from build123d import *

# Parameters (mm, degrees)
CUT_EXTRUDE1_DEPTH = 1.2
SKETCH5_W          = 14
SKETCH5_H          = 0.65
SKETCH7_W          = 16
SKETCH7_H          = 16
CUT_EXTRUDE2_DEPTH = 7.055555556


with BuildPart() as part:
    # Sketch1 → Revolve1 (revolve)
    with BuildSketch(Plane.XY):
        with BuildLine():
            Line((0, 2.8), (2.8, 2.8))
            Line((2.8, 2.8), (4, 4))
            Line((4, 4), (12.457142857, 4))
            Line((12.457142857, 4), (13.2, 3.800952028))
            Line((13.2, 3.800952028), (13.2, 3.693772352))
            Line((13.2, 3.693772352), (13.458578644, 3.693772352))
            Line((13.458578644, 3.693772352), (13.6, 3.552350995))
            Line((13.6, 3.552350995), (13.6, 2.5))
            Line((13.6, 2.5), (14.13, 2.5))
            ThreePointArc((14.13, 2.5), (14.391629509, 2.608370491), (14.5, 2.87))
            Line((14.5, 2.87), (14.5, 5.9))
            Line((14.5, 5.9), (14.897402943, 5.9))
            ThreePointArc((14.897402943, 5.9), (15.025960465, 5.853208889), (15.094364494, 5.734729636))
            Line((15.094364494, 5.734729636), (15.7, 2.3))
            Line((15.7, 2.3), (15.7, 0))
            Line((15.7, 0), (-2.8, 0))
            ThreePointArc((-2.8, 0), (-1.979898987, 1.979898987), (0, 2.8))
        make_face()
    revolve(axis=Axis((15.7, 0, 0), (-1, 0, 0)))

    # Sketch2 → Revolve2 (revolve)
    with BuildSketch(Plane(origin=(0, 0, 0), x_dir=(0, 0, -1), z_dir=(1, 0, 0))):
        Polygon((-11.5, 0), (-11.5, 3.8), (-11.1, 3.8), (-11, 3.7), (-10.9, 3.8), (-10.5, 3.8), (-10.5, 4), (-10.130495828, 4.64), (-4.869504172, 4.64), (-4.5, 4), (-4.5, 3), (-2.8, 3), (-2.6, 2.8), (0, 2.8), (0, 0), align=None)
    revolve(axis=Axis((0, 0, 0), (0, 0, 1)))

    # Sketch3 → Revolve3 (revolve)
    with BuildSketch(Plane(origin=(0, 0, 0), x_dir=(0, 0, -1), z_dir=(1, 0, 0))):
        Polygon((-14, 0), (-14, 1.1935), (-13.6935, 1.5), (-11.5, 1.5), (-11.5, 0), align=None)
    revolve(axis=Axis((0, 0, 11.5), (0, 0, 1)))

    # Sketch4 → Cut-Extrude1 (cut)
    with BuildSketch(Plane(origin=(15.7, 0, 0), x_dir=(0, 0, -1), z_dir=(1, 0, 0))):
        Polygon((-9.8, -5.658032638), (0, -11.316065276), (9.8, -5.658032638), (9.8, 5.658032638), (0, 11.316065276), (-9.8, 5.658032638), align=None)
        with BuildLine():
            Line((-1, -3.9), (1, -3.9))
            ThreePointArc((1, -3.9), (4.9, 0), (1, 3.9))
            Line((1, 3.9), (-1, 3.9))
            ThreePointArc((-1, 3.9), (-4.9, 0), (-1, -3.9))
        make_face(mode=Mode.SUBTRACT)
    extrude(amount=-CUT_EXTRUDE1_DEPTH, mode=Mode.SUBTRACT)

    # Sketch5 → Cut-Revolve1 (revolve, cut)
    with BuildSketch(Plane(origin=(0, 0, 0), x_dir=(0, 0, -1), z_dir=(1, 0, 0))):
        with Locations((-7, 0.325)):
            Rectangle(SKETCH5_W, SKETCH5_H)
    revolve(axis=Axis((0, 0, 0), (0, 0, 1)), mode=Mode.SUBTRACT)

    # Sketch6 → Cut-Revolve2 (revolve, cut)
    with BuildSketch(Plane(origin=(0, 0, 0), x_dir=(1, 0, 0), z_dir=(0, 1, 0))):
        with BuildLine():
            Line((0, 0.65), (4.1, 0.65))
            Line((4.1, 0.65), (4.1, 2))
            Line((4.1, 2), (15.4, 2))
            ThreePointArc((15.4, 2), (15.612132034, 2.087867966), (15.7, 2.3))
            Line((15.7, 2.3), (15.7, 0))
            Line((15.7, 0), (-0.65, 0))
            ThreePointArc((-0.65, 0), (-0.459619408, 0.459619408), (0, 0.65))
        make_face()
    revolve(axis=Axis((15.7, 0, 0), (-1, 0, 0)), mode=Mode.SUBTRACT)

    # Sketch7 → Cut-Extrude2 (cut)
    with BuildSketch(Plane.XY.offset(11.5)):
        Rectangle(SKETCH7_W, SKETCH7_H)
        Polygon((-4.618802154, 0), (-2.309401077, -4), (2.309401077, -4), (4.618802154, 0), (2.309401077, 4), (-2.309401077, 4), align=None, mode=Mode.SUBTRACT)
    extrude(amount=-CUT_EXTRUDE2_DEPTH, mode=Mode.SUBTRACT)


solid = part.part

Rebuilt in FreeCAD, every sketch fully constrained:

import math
import FreeCAD as App
import Part
import Sketcher
Q = App.Units.Quantity


def add_polygon(sketch, points):
    """Adds a closed chain of lines whose ends are joined by coincident constraints."""
    first, n = sketch.GeometryCount, len(points)
    for a, b in zip(points, points[1:] + points[:1]):
        sketch.addGeometry(Part.LineSegment(App.Vector(*a, 0), App.Vector(*b, 0)), False)
    for i in range(n):
        sketch.addConstraint(Sketcher.Constraint("Coincident", first + i, 2, first + (i + 1) % n, 1))

doc = App.newDocument("Part")
params = doc.addObject("Spreadsheet::Sheet", "Params")
for row, (alias, value) in enumerate([
    ("sketch1_radius", "2.8 mm"),
    ("sketch1_radius2", "0.2 mm"),
    ("sketch1_radius3", "0.37 mm"),
    ("sketch1_width", "2.8 mm"),
    ("sketch1_width2", "18.5 mm"),
    ("revolution_angle", "360 deg"),
    ("sketch2_width", "1 mm"),
    ("sketch2_width2", "3.8 mm"),
    ("sketch2_width3", "2.8 mm"),
    ("sketch2_width4", "0.2 mm"),
    ("sketch2_height", "11.5 mm"),
    ("revolution2_angle", "360 deg"),
    ("sketch3_width", "1.5 mm"),
    ("sketch3_height", "2.5 mm"),
    ("revolution3_angle", "360 deg"),
    ("sketch4_radius", "3.9 mm"),
    ("sketch4_height", "2 mm"),
    ("pocket1_length", "1.2 mm"),
    ("sketch5_height", "14 mm"),
    ("sketch5_width", "0.65 mm"),
    ("groove_angle", "360 deg"),
    ("sketch6_radius", "0.3 mm"),
    ("sketch6_radius2", "0.65 mm"),
    ("sketch6_width", "4.1 mm"),
    ("sketch6_width2", "11.3 mm"),
    ("sketch6_height", "2.3 mm"),
    ("groove2_angle", "360 deg"),
    ("sketch7_width", "16 mm"),
    ("pocket2_length", "7.055556 mm"),
], start=1):
    params.set(f"A{row}", alias)
    params.set(f"B{row}", "=" + value)
    params.setAlias(f"B{row}", alias)

body = doc.addObject("PartDesign::Body", "Body")

sketch1 = body.newObject("Sketcher::SketchObject", "Sketch")
sketch1.AttachmentSupport = (doc.getObject("XY_Plane"), [""])
sketch1.MapMode = "FlatFace"
sketch1.addGeometry(Part.LineSegment(App.Vector(2.8, 2.8, 0), App.Vector(0, 2.8, 0)), False)
sketch1.addGeometry(Part.ArcOfCircle(Part.Circle(App.Vector(0, 0, 0), App.Vector(0, 0, 1), 2.8), math.radians(90), math.radians(180)), False)
sketch1.addGeometry(Part.LineSegment(App.Vector(-2.8, 0, 0), App.Vector(15.7, 0, 0)), False)
sketch1.addGeometry(Part.LineSegment(App.Vector(15.7, 0, 0), App.Vector(15.7, 2.3, 0)), False)
sketch1.addGeometry(Part.LineSegment(App.Vector(15.7, 2.3, 0), App.Vector(15.09, 5.73, 0)), False)
sketch1.addGeometry(Part.ArcOfCircle(Part.Circle(App.Vector(14.9, 5.7, 0), App.Vector(0, 0, 1), 0.2), math.radians(10), math.radians(90)), False)
sketch1.addGeometry(Part.LineSegment(App.Vector(14.9, 5.9, 0), App.Vector(14.5, 5.9, 0)), False)
sketch1.addGeometry(Part.LineSegment(App.Vector(14.5, 5.9, 0), App.Vector(14.5, 2.87, 0)), False)
sketch1.addGeometry(Part.ArcOfCircle(Part.Circle(App.Vector(14.13, 2.87, 0), App.Vector(0, 0, 1), 0.37), math.radians(-90), math.radians(0)), False)
sketch1.addGeometry(Part.LineSegment(App.Vector(14.13, 2.5, 0), App.Vector(13.6, 2.5, 0)), False)
sketch1.addGeometry(Part.LineSegment(App.Vector(13.6, 2.5, 0), App.Vector(13.6, 3.55, 0)), False)
sketch1.addGeometry(Part.LineSegment(App.Vector(13.6, 3.55, 0), App.Vector(13.46, 3.69, 0)), False)
sketch1.addGeometry(Part.LineSegment(App.Vector(13.46, 3.69, 0), App.Vector(13.2, 3.69, 0)), False)
sketch1.addGeometry(Part.LineSegment(App.Vector(13.2, 3.69, 0), App.Vector(13.2, 3.8, 0)), False)
sketch1.addGeometry(Part.LineSegment(App.Vector(13.2, 3.8, 0), App.Vector(12.46, 4, 0)), False)
sketch1.addGeometry(Part.LineSegment(App.Vector(12.46, 4, 0), App.Vector(4, 4, 0)), False)
sketch1.addGeometry(Part.LineSegment(App.Vector(4, 4, 0), App.Vector(2.8, 2.8, 0)), False)
sketch1.addConstraint(Sketcher.Constraint("Tangent", 0, 2, 1, 1))
sketch1.addConstraint(Sketcher.Constraint("Coincident", 1, 2, 2, 1))
sketch1.addConstraint(Sketcher.Constraint("Coincident", 2, 2, 3, 1))
sketch1.addConstraint(Sketcher.Constraint("Coincident", 3, 2, 4, 1))
sketch1.addConstraint(Sketcher.Constraint("Tangent", 4, 2, 5, 1))
sketch1.addConstraint(Sketcher.Constraint("Tangent", 5, 2, 6, 1))
sketch1.addConstraint(Sketcher.Constraint("Coincident", 6, 2, 7, 1))
sketch1.addConstraint(Sketcher.Constraint("Tangent", 7, 2, 8, 2))
sketch1.addConstraint(Sketcher.Constraint("Tangent", 8, 1, 9, 1))
sketch1.addConstraint(Sketcher.Constraint("Coincident", 9, 2, 10, 1))
sketch1.addConstraint(Sketcher.Constraint("Coincident", 10, 2, 11, 1))
sketch1.addConstraint(Sketcher.Constraint("Coincident", 11, 2, 12, 1))
sketch1.addConstraint(Sketcher.Constraint("Coincident", 12, 2, 13, 1))
sketch1.addConstraint(Sketcher.Constraint("Coincident", 13, 2, 14, 1))
sketch1.addConstraint(Sketcher.Constraint("Coincident", 14, 2, 15, 1))
sketch1.addConstraint(Sketcher.Constraint("Coincident", 15, 2, 16, 1))
sketch1.addConstraint(Sketcher.Constraint("Coincident", 16, 2, 0, 1))
sketch1.addConstraint(Sketcher.Constraint("Horizontal", 0))
sketch1.addConstraint(Sketcher.Constraint("Horizontal", 2))
sketch1.addConstraint(Sketcher.Constraint("Vertical", 3))
sketch1.addConstraint(Sketcher.Constraint("Horizontal", 6))
sketch1.addConstraint(Sketcher.Constraint("Vertical", 7))
sketch1.addConstraint(Sketcher.Constraint("Horizontal", 9))
sketch1.addConstraint(Sketcher.Constraint("Vertical", 10))
sketch1.addConstraint(Sketcher.Constraint("Horizontal", 12))
sketch1.addConstraint(Sketcher.Constraint("Vertical", 13))
sketch1.addConstraint(Sketcher.Constraint("Horizontal", 15))
sketch1.addConstraint(Sketcher.Constraint("Coincident", 1, 3, -1, 1))
sketch1.addConstraint(Sketcher.Constraint("PointOnObject", 1, 2, -1))
sketch1.addConstraint(Sketcher.Constraint("Perpendicular", 11, 16))
sketch1.addConstraint(Sketcher.Constraint("Radius", 1, Q("2.8 mm")))
sketch1.addConstraint(Sketcher.Constraint("Radius", 5, Q("0.2 mm")))
sketch1.addConstraint(Sketcher.Constraint("Angle", 4, Q("100 deg")))
sketch1.addConstraint(Sketcher.Constraint("Angle", 11, Q("135 deg")))
sketch1.addConstraint(Sketcher.Constraint("Angle", 14, Q("165 deg")))
sketch1.addConstraint(Sketcher.Constraint("Radius", 8, Q("0.37 mm")))
sketch1.addConstraint(Sketcher.Constraint("DistanceX", 0, 2, 0, 1, Q("2.8 mm")))
sketch1.addConstraint(Sketcher.Constraint("DistanceX", 2, 1, 2, 2, Q("18.5 mm")))
sketch1.addConstraint(Sketcher.Constraint("DistanceY", 3, 1, 3, 2, Q("2.3 mm")))
sketch1.addConstraint(Sketcher.Constraint("DistanceY", -1, 1, 14, 2, Q("4 mm")))
sketch1.addConstraint(Sketcher.Constraint("Distance", 11, Q("0.2 mm")))
sketch1.addConstraint(Sketcher.Constraint("DistanceX", 9, 2, 9, 1, Q("0.53 mm")))
sketch1.addConstraint(Sketcher.Constraint("DistanceY", 7, 2, 7, 1, Q("3.03 mm")))
sketch1.addConstraint(Sketcher.Constraint("DistanceY", -1, 1, 5, 3, Q("5.7 mm")))
sketch1.addConstraint(Sketcher.Constraint("DistanceX", -1, 1, 6, 2, Q("14.5 mm")))
sketch1.addConstraint(Sketcher.Constraint("DistanceX", -1, 1, 12, 2, Q("13.2 mm")))
sketch1.addConstraint(Sketcher.Constraint("DistanceY", 10, 1, 10, 2, Q("1.052351 mm")))
sketch1.addConstraint(Sketcher.Constraint("DistanceY", 13, 1, 13, 2, Q("0.10718 mm")))
sketch1.setExpression("Constraints[30]", "Params.sketch1_radius")
sketch1.setExpression("Constraints[31]", "Params.sketch1_radius2")
sketch1.setExpression("Constraints[35]", "Params.sketch1_radius3")
sketch1.setExpression("Constraints[36]", "Params.sketch1_width")
sketch1.setExpression("Constraints[37]", "Params.sketch1_width2")
revolution = body.newObject("PartDesign::Revolution", "Revolution")
revolution.Profile = sketch1
revolution.ReferenceAxis = (sketch1, ["H_Axis"])
revolution.setExpression("Angle", "Params.revolution_angle")

sketch2 = body.newObject("Sketcher::SketchObject", "Sketch001")
sketch2.AttachmentSupport = (doc.getObject("YZ_Plane"), [""])
sketch2.MapMode = "FlatFace"
add_polygon(sketch2, [(3.8, 11.5), (0, 11.5), (0, 0), (2.8, 0), (2.8, 2.6), (3, 2.8), (3, 4.5), (4, 4.5), (4.64, 4.87), (4.64, 10.13), (4, 10.5), (3.8, 10.5), (3.8, 10.9), (3.7, 11), (3.8, 11.1)])
sketch2.addConstraint(Sketcher.Constraint("Horizontal", 0))
sketch2.addConstraint(Sketcher.Constraint("Vertical", 1))
sketch2.addConstraint(Sketcher.Constraint("Horizontal", 2))
sketch2.addConstraint(Sketcher.Constraint("Vertical", 3))
sketch2.addConstraint(Sketcher.Constraint("Vertical", 5))
sketch2.addConstraint(Sketcher.Constraint("Horizontal", 6))
sketch2.addConstraint(Sketcher.Constraint("Vertical", 8))
sketch2.addConstraint(Sketcher.Constraint("Horizontal", 10))
sketch2.addConstraint(Sketcher.Constraint("Vertical", 11))
sketch2.addConstraint(Sketcher.Constraint("Vertical", 14))
sketch2.addConstraint(Sketcher.Constraint("Coincident", 1, 2, -1, 1))
sketch2.addConstraint(Sketcher.Constraint("Perpendicular", 4, 12))
sketch2.addConstraint(Sketcher.Constraint("Perpendicular", 12, 13))
sketch2.addConstraint(Sketcher.Constraint("Vertical", 6, 2, 9, 2))
sketch2.addConstraint(Sketcher.Constraint("Vertical", 11, 2, 13, 2))
sketch2.addConstraint(Sketcher.Constraint("Equal", 11, 14))
sketch2.addConstraint(Sketcher.Constraint("Equal", 7, 9))
sketch2.addConstraint(Sketcher.Constraint("Equal", 12, 13))
sketch2.addConstraint(Sketcher.Constraint("DistanceX", 6, 1, 6, 2, Q("1 mm")))
sketch2.addConstraint(Sketcher.Constraint("Angle", 7, Q("30 deg")))
sketch2.addConstraint(Sketcher.Constraint("DistanceX", 0, 2, 0, 1, Q("3.8 mm")))
sketch2.addConstraint(Sketcher.Constraint("DistanceX", 2, 1, 2, 2, Q("2.8 mm")))
sketch2.addConstraint(Sketcher.Constraint("DistanceX", 10, 2, 10, 1, Q("0.2 mm")))
sketch2.addConstraint(Sketcher.Constraint("DistanceY", 1, 2, 1, 1, Q("11.5 mm")))
sketch2.addConstraint(Sketcher.Constraint("DistanceY", 3, 1, 3, 2, Q("2.6 mm")))
sketch2.addConstraint(Sketcher.Constraint("DistanceY", 5, 1, 5, 2, Q("1.7 mm")))
sketch2.addConstraint(Sketcher.Constraint("DistanceY", 11, 1, 11, 2, Q("0.4 mm")))
sketch2.addConstraint(Sketcher.Constraint("DistanceY", -1, 1, 12, 2, Q("11 mm")))
sketch2.addConstraint(Sketcher.Constraint("DistanceX", -1, 1, 7, 2, Q("4.64 mm")))
sketch2.setExpression("Constraints[33]", "Params.sketch2_width")
sketch2.setExpression("Constraints[35]", "Params.sketch2_width2")
sketch2.setExpression("Constraints[36]", "Params.sketch2_width3")
sketch2.setExpression("Constraints[37]", "Params.sketch2_width4")
sketch2.setExpression("Constraints[38]", "Params.sketch2_height")
revolution2 = body.newObject("PartDesign::Revolution", "Revolution001")
revolution2.Profile = sketch2
revolution2.ReferenceAxis = (sketch2, ["V_Axis"])
revolution2.setExpression("Angle", "Params.revolution2_angle")

sketch3 = body.newObject("Sketcher::SketchObject", "Sketch002")
sketch3.AttachmentSupport = (doc.getObject("YZ_Plane"), [""])
sketch3.MapMode = "FlatFace"
add_polygon(sketch3, [(1.19, 14), (0, 14), (0, 11.5), (1.5, 11.5), (1.5, 13.69)])
sketch3.addConstraint(Sketcher.Constraint("Horizontal", 0))
sketch3.addConstraint(Sketcher.Constraint("Vertical", 1))
sketch3.addConstraint(Sketcher.Constraint("Horizontal", 2))
sketch3.addConstraint(Sketcher.Constraint("Vertical", 3))
sketch3.addConstraint(Sketcher.Constraint("PointOnObject", 0, 2, -2))
sketch3.addConstraint(Sketcher.Constraint("Angle", 4, Q("135 deg")))
sketch3.addConstraint(Sketcher.Constraint("DistanceX", 2, 1, 2, 2, Q("1.5 mm")))
sketch3.addConstraint(Sketcher.Constraint("DistanceY", 1, 2, 1, 1, Q("2.5 mm")))
sketch3.addConstraint(Sketcher.Constraint("DistanceY", -1, 1, 0, 2, Q("14 mm")))
sketch3.addConstraint(Sketcher.Constraint("DistanceX", 0, 2, 0, 1, Q("1.1935 mm")))
sketch3.setExpression("Constraints[11]", "Params.sketch3_width")
sketch3.setExpression("Constraints[12]", "Params.sketch3_height")
revolution3 = body.newObject("PartDesign::Revolution", "Revolution002")
revolution3.Profile = sketch3
revolution3.ReferenceAxis = (sketch3, ["V_Axis"])
revolution3.setExpression("Angle", "Params.revolution3_angle")

sketch4 = body.newObject("Sketcher::SketchObject", "Sketch003")
sketch4.AttachmentSupport = (doc.getObject("YZ_Plane"), [""])
sketch4.MapMode = "FlatFace"
sketch4.AttachmentOffset = App.Placement(App.Vector(0, 0, 15.7), App.Rotation())
add_polygon(sketch4, [(-5.7, 9.8), (-11.3, 0), (-5.7, -9.8), (5.7, -9.8), (11.3, 0), (5.7, 9.8)])
sketch4.addGeometry(Part.LineSegment(App.Vector(-3.9, -1, 0), App.Vector(-3.9, 1, 0)), False)
sketch4.addGeometry(Part.ArcOfCircle(Part.Circle(App.Vector(0, 1, 0), App.Vector(0, 0, 1), 3.9), math.radians(0), math.radians(180)), False)
sketch4.addGeometry(Part.LineSegment(App.Vector(3.9, 1, 0), App.Vector(3.9, -1, 0)), False)
sketch4.addGeometry(Part.ArcOfCircle(Part.Circle(App.Vector(0, -1, 0), App.Vector(0, 0, 1), 3.9), math.radians(180), math.radians(360)), False)
sketch4.addConstraint(Sketcher.Constraint("Tangent", 6, 2, 7, 2))
sketch4.addConstraint(Sketcher.Constraint("Tangent", 7, 1, 8, 1))
sketch4.addConstraint(Sketcher.Constraint("Tangent", 8, 2, 9, 2))
sketch4.addConstraint(Sketcher.Constraint("Tangent", 9, 1, 6, 1))
sketch4.addConstraint(Sketcher.Constraint("Horizontal", 2))
sketch4.addConstraint(Sketcher.Constraint("Horizontal", 5))
sketch4.addConstraint(Sketcher.Constraint("Vertical", 6))
sketch4.addConstraint(Sketcher.Constraint("Vertical", 8))
sketch4.addConstraint(Sketcher.Constraint("Symmetric", 7, 3, 9, 3, -1, 1))
sketch4.addConstraint(Sketcher.Constraint("Symmetric", 0, 2, 3, 2, -1, 1))
sketch4.addConstraint(Sketcher.Constraint("Symmetric", 1, 2, 4, 2, -1, 1))
sketch4.addConstraint(Sketcher.Constraint("PointOnObject", 0, 2, -1))
sketch4.addConstraint(Sketcher.Constraint("Parallel", 0, 3))
sketch4.addConstraint(Sketcher.Constraint("Vertical", 2, 2, 4, 2))
sketch4.addConstraint(Sketcher.Constraint("Radius", 7, Q("3.9 mm")))
sketch4.addConstraint(Sketcher.Constraint("DistanceY", 6, 1, 6, 2, Q("2 mm")))
sketch4.addConstraint(Sketcher.Constraint("Angle", 0, Q("-120 deg")))
sketch4.addConstraint(Sketcher.Constraint("DistanceY", 1, 2, -1, 1, Q("9.8 mm")))
sketch4.addConstraint(Sketcher.Constraint("DistanceX", 2, 1, 2, 2, Q("11.316065 mm")))
sketch4.setExpression("Constraints[20]", "Params.sketch4_radius")
sketch4.setExpression("Constraints[21]", "Params.sketch4_height")
pocket1 = body.newObject("PartDesign::Pocket", "Pocket")
pocket1.Profile = sketch4
pocket1.setExpression("Length", "Params.pocket1_length")

sketch5 = body.newObject("Sketcher::SketchObject", "Sketch004")
sketch5.AttachmentSupport = (doc.getObject("YZ_Plane"), [""])
sketch5.MapMode = "FlatFace"
add_polygon(sketch5, [(0.7, 14), (0, 14), (0, 0), (0.7, 0)])
sketch5.addConstraint(Sketcher.Constraint("Horizontal", 0))
sketch5.addConstraint(Sketcher.Constraint("Vertical", 1))
sketch5.addConstraint(Sketcher.Constraint("Horizontal", 2))
sketch5.addConstraint(Sketcher.Constraint("Vertical", 3))
sketch5.addConstraint(Sketcher.Constraint("Coincident", 1, 2, -1, 1))
sketch5.addConstraint(Sketcher.Constraint("DistanceY", 1, 2, 1, 1, Q("14 mm")))
sketch5.addConstraint(Sketcher.Constraint("DistanceX", 0, 2, 0, 1, Q("0.65 mm")))
sketch5.setExpression("Constraints[9]", "Params.sketch5_height")
sketch5.setExpression("Constraints[10]", "Params.sketch5_width")
groove = body.newObject("PartDesign::Groove", "Groove")
groove.Profile = sketch5
groove.ReferenceAxis = (sketch5, ["V_Axis"])
groove.setExpression("Angle", "Params.groove_angle")

sketch6 = body.newObject("Sketcher::SketchObject", "Sketch005")
sketch6.AttachmentSupport = (doc.getObject("XZ_Plane"), [""])
sketch6.MapMode = "FlatFace"
sketch6.addGeometry(Part.LineSegment(App.Vector(4.1, -0.65, 0), App.Vector(0, -0.65, 0)), False)
sketch6.addGeometry(Part.ArcOfCircle(Part.Circle(App.Vector(0, 0, 0), App.Vector(0, 0, 1), 0.65), math.radians(180), math.radians(270)), False)
sketch6.addGeometry(Part.LineSegment(App.Vector(-0.65, 0, 0), App.Vector(15.7, 0, 0)), False)
sketch6.addGeometry(Part.LineSegment(App.Vector(15.7, 0, 0), App.Vector(15.7, -2.3, 0)), False)
sketch6.addGeometry(Part.ArcOfCircle(Part.Circle(App.Vector(15.4, -2.3, 0), App.Vector(0, 0, 1), 0.3), math.radians(0), math.radians(90)), False)
sketch6.addGeometry(Part.LineSegment(App.Vector(15.4, -2, 0), App.Vector(4.1, -2, 0)), False)
sketch6.addGeometry(Part.LineSegment(App.Vector(4.1, -2, 0), App.Vector(4.1, -0.65, 0)), False)
sketch6.addConstraint(Sketcher.Constraint("Tangent", 0, 2, 1, 2))
sketch6.addConstraint(Sketcher.Constraint("Coincident", 1, 1, 2, 1))
sketch6.addConstraint(Sketcher.Constraint("Coincident", 2, 2, 3, 1))
sketch6.addConstraint(Sketcher.Constraint("Tangent", 3, 2, 4, 1))
sketch6.addConstraint(Sketcher.Constraint("Tangent", 4, 2, 5, 1))
sketch6.addConstraint(Sketcher.Constraint("Coincident", 5, 2, 6, 1))
sketch6.addConstraint(Sketcher.Constraint("Coincident", 6, 2, 0, 1))
sketch6.addConstraint(Sketcher.Constraint("Horizontal", 0))
sketch6.addConstraint(Sketcher.Constraint("Horizontal", 2))
sketch6.addConstraint(Sketcher.Constraint("Vertical", 3))
sketch6.addConstraint(Sketcher.Constraint("Horizontal", 5))
sketch6.addConstraint(Sketcher.Constraint("Vertical", 6))
sketch6.addConstraint(Sketcher.Constraint("Coincident", 1, 3, -1, 1))
sketch6.addConstraint(Sketcher.Constraint("PointOnObject", 1, 1, -1))
sketch6.addConstraint(Sketcher.Constraint("Radius", 4, Q("0.3 mm")))
sketch6.addConstraint(Sketcher.Constraint("Radius", 1, Q("0.65 mm")))
sketch6.addConstraint(Sketcher.Constraint("DistanceX", 0, 2, 0, 1, Q("4.1 mm")))
sketch6.addConstraint(Sketcher.Constraint("DistanceX", 5, 2, 5, 1, Q("11.3 mm")))
sketch6.addConstraint(Sketcher.Constraint("DistanceY", 3, 2, 3, 1, Q("2.3 mm")))
sketch6.setExpression("Constraints[14]", "Params.sketch6_radius")
sketch6.setExpression("Constraints[15]", "Params.sketch6_radius2")
sketch6.setExpression("Constraints[16]", "Params.sketch6_width")
sketch6.setExpression("Constraints[17]", "Params.sketch6_width2")
sketch6.setExpression("Constraints[18]", "Params.sketch6_height")
groove2 = body.newObject("PartDesign::Groove", "Groove001")
groove2.Profile = sketch6
groove2.ReferenceAxis = (sketch6, ["H_Axis"])
groove2.setExpression("Angle", "Params.groove2_angle")

sketch7 = body.newObject("Sketcher::SketchObject", "Sketch006")
sketch7.AttachmentSupport = (doc.getObject("XY_Plane"), [""])
sketch7.MapMode = "FlatFace"
sketch7.AttachmentOffset = App.Placement(App.Vector(0, 0, 11.5), App.Rotation())
add_polygon(sketch7, [(-8, 8), (-8, -8), (8, -8), (8, 8)])
add_polygon(sketch7, [(-2.3, -4), (-4.6, 0), (-2.3, 4), (2.3, 4), (4.6, 0), (2.3, -4)])
sketch7.addConstraint(Sketcher.Constraint("Vertical", 0))
sketch7.addConstraint(Sketcher.Constraint("Horizontal", 1))
sketch7.addConstraint(Sketcher.Constraint("Vertical", 2))
sketch7.addConstraint(Sketcher.Constraint("Horizontal", 3))
sketch7.addConstraint(Sketcher.Constraint("Horizontal", 6))
sketch7.addConstraint(Sketcher.Constraint("Horizontal", 9))
sketch7.addConstraint(Sketcher.Constraint("Symmetric", 0, 2, 2, 2, -1, 1))
sketch7.addConstraint(Sketcher.Constraint("Symmetric", 4, 2, 7, 2, -1, 1))
sketch7.addConstraint(Sketcher.Constraint("Symmetric", 5, 2, 8, 2, -1, 1))
sketch7.addConstraint(Sketcher.Constraint("PointOnObject", 4, 2, -1))
sketch7.addConstraint(Sketcher.Constraint("Parallel", 4, 7))
sketch7.addConstraint(Sketcher.Constraint("Vertical", 6, 2, 8, 2))
sketch7.addConstraint(Sketcher.Constraint("Equal", 3, 0))
sketch7.addConstraint(Sketcher.Constraint("DistanceX", 1, 1, 1, 2, Q("16 mm")))
sketch7.addConstraint(Sketcher.Constraint("Angle", 4, Q("120 deg")))
sketch7.addConstraint(Sketcher.Constraint("DistanceY", -1, 1, 5, 2, Q("4 mm")))
sketch7.addConstraint(Sketcher.Constraint("DistanceX", 5, 2, -1, 1, Q("2.309401 mm")))
sketch7.setExpression("Constraints[23]", "Params.sketch7_width")
pocket2 = body.newObject("PartDesign::Pocket", "Pocket001")
pocket2.Profile = sketch7
pocket2.setExpression("Length", "Params.pocket2_length")

doc.recompute()
